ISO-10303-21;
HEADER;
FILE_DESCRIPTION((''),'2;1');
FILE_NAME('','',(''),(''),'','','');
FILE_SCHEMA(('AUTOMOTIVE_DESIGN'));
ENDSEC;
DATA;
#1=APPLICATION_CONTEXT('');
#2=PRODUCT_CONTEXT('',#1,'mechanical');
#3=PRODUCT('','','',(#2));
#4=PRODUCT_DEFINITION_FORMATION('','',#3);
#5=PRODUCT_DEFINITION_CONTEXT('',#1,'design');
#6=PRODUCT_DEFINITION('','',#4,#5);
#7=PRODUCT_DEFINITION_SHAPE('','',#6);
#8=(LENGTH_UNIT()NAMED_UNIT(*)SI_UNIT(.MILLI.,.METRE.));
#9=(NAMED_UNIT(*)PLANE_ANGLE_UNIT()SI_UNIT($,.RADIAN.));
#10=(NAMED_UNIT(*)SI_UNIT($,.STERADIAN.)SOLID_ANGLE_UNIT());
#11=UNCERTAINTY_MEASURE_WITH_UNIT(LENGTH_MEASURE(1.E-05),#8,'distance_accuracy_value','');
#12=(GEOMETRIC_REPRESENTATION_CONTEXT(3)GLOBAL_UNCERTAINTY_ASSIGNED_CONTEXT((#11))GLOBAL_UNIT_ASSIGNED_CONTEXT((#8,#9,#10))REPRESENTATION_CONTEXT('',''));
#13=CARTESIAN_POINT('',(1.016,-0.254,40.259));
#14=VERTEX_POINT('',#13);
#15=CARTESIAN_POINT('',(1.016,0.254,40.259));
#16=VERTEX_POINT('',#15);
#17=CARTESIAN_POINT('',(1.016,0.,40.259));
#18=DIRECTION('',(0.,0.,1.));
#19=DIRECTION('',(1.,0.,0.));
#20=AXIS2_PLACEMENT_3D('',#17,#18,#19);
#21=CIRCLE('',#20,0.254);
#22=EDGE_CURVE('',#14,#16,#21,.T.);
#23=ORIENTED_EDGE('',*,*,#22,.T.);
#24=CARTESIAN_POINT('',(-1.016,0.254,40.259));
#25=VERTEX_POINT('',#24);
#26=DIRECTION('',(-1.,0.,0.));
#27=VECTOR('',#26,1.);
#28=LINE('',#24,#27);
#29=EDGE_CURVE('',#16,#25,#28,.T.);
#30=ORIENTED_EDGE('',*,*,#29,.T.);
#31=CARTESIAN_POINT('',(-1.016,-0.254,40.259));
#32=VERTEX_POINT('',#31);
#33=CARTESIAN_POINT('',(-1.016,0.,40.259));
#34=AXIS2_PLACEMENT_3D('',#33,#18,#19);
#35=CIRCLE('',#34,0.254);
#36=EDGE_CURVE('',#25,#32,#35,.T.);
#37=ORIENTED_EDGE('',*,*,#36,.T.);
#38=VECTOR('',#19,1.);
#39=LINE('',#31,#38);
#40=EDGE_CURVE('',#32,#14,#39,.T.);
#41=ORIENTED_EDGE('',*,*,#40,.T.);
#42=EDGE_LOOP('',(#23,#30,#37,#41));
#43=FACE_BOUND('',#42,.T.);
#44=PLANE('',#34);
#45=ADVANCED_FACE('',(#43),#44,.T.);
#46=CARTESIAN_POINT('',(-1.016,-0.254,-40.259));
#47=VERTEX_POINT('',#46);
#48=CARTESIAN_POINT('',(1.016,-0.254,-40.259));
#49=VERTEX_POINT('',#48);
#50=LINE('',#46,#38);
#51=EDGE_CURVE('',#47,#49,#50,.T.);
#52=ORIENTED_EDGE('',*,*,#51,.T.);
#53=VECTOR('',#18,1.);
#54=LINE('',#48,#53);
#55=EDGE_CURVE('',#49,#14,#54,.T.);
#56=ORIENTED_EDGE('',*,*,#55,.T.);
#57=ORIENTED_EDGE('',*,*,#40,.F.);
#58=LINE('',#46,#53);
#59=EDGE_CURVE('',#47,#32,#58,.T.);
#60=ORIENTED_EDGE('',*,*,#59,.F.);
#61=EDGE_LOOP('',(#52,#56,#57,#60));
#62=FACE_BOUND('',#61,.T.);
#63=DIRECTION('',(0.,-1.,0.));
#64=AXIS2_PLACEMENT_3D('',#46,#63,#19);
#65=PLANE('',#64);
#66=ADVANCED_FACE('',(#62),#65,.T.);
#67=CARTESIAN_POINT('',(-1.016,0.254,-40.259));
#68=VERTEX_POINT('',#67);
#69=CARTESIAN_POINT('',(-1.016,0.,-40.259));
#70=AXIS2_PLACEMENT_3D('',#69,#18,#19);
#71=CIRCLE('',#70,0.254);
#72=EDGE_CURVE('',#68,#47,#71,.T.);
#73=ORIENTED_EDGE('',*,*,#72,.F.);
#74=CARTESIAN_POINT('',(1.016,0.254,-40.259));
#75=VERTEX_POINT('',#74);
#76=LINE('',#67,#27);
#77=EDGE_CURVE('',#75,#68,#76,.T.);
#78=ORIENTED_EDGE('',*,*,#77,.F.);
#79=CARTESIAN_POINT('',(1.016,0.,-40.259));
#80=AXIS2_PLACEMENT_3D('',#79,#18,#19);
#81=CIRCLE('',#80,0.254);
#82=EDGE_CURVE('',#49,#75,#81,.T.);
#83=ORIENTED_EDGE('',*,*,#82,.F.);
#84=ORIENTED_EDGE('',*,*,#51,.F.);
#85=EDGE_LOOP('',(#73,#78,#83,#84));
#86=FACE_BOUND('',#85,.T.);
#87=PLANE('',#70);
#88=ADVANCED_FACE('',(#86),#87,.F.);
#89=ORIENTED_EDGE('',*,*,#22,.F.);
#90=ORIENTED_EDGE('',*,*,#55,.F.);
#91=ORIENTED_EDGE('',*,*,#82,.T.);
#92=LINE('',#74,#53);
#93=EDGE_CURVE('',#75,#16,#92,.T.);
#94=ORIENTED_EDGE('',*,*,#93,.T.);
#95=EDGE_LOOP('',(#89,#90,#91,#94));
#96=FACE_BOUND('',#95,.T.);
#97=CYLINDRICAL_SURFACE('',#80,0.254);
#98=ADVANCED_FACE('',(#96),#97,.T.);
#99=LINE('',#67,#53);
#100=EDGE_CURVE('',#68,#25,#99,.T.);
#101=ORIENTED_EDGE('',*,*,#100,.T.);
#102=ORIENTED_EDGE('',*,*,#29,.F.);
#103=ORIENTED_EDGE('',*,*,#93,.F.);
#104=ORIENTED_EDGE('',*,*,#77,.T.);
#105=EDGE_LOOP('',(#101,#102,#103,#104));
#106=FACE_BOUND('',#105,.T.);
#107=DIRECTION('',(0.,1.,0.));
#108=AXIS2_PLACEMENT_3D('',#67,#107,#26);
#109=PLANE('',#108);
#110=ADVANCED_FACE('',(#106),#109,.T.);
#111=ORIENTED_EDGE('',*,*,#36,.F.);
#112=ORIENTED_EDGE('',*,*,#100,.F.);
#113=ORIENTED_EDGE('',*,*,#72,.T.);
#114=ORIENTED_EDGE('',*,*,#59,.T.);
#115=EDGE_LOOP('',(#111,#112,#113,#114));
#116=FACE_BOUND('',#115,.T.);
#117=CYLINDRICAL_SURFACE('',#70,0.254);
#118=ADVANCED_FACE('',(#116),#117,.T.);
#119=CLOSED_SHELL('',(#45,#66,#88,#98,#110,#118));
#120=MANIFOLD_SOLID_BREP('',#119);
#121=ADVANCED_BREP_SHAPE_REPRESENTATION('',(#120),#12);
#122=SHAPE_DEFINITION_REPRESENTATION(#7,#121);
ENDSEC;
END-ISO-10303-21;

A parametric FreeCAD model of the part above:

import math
import FreeCAD as App
import Part
import Sketcher
from FreeCAD import Vector
Q = App.Units.Quantity

doc = App.newDocument("Part")
body = doc.addObject("PartDesign::Body", "Body")

# Sketch on XY plane
sketch1 = doc.addObject("Sketcher::SketchObject", "Sketch")
body.addObject(sketch1)
sketch1.AttachmentSupport = (doc.XY_Plane, [""])
sketch1.MapMode = "FlatFace"
sketch1.addGeometry([
    Part.LineSegment(Vector(-1.02, -0.25, 0), Vector(1.02, -0.25, 0)),
    Part.ArcOfCircle(Part.Circle(Vector(1.02, 0, 0), Vector(0, 0, 1), 0.25), math.radians(-90), math.radians(90)),
    Part.LineSegment(Vector(1.02, 0.25, 0), Vector(-1.02, 0.25, 0)),
    Part.ArcOfCircle(Part.Circle(Vector(-1.02, 0, 0), Vector(0, 0, 1), 0.25), math.radians(90), math.radians(270)),
], False)
sketch1.addConstraint([
    Sketcher.Constraint("Tangent", 0, 2, 1, 1),
    Sketcher.Constraint("Tangent", 1, 2, 2, 1),
    Sketcher.Constraint("Tangent", 2, 2, 3, 1),
    Sketcher.Constraint("Tangent", 3, 2, 0, 1),
    Sketcher.Constraint("Horizontal", 0),
    Sketcher.Constraint("Horizontal", 2),
    Sketcher.Constraint("Symmetric", 1, 3, 3, 3, -1, 1),
    Sketcher.Constraint("Radius", 1, Q("0.01 in")),
    Sketcher.Constraint("DistanceX", 0, 1, 0, 2, Q("0.08 in")),
])
pad1 = doc.addObject("PartDesign::Pad", "Pad")
body.addObject(pad1)
pad1.Profile = sketch1
pad1.Type = "TwoLengths"
pad1.Length = Q("1.585 in")
pad1.Length2 = Q("1.585 in")

doc.recompute()
